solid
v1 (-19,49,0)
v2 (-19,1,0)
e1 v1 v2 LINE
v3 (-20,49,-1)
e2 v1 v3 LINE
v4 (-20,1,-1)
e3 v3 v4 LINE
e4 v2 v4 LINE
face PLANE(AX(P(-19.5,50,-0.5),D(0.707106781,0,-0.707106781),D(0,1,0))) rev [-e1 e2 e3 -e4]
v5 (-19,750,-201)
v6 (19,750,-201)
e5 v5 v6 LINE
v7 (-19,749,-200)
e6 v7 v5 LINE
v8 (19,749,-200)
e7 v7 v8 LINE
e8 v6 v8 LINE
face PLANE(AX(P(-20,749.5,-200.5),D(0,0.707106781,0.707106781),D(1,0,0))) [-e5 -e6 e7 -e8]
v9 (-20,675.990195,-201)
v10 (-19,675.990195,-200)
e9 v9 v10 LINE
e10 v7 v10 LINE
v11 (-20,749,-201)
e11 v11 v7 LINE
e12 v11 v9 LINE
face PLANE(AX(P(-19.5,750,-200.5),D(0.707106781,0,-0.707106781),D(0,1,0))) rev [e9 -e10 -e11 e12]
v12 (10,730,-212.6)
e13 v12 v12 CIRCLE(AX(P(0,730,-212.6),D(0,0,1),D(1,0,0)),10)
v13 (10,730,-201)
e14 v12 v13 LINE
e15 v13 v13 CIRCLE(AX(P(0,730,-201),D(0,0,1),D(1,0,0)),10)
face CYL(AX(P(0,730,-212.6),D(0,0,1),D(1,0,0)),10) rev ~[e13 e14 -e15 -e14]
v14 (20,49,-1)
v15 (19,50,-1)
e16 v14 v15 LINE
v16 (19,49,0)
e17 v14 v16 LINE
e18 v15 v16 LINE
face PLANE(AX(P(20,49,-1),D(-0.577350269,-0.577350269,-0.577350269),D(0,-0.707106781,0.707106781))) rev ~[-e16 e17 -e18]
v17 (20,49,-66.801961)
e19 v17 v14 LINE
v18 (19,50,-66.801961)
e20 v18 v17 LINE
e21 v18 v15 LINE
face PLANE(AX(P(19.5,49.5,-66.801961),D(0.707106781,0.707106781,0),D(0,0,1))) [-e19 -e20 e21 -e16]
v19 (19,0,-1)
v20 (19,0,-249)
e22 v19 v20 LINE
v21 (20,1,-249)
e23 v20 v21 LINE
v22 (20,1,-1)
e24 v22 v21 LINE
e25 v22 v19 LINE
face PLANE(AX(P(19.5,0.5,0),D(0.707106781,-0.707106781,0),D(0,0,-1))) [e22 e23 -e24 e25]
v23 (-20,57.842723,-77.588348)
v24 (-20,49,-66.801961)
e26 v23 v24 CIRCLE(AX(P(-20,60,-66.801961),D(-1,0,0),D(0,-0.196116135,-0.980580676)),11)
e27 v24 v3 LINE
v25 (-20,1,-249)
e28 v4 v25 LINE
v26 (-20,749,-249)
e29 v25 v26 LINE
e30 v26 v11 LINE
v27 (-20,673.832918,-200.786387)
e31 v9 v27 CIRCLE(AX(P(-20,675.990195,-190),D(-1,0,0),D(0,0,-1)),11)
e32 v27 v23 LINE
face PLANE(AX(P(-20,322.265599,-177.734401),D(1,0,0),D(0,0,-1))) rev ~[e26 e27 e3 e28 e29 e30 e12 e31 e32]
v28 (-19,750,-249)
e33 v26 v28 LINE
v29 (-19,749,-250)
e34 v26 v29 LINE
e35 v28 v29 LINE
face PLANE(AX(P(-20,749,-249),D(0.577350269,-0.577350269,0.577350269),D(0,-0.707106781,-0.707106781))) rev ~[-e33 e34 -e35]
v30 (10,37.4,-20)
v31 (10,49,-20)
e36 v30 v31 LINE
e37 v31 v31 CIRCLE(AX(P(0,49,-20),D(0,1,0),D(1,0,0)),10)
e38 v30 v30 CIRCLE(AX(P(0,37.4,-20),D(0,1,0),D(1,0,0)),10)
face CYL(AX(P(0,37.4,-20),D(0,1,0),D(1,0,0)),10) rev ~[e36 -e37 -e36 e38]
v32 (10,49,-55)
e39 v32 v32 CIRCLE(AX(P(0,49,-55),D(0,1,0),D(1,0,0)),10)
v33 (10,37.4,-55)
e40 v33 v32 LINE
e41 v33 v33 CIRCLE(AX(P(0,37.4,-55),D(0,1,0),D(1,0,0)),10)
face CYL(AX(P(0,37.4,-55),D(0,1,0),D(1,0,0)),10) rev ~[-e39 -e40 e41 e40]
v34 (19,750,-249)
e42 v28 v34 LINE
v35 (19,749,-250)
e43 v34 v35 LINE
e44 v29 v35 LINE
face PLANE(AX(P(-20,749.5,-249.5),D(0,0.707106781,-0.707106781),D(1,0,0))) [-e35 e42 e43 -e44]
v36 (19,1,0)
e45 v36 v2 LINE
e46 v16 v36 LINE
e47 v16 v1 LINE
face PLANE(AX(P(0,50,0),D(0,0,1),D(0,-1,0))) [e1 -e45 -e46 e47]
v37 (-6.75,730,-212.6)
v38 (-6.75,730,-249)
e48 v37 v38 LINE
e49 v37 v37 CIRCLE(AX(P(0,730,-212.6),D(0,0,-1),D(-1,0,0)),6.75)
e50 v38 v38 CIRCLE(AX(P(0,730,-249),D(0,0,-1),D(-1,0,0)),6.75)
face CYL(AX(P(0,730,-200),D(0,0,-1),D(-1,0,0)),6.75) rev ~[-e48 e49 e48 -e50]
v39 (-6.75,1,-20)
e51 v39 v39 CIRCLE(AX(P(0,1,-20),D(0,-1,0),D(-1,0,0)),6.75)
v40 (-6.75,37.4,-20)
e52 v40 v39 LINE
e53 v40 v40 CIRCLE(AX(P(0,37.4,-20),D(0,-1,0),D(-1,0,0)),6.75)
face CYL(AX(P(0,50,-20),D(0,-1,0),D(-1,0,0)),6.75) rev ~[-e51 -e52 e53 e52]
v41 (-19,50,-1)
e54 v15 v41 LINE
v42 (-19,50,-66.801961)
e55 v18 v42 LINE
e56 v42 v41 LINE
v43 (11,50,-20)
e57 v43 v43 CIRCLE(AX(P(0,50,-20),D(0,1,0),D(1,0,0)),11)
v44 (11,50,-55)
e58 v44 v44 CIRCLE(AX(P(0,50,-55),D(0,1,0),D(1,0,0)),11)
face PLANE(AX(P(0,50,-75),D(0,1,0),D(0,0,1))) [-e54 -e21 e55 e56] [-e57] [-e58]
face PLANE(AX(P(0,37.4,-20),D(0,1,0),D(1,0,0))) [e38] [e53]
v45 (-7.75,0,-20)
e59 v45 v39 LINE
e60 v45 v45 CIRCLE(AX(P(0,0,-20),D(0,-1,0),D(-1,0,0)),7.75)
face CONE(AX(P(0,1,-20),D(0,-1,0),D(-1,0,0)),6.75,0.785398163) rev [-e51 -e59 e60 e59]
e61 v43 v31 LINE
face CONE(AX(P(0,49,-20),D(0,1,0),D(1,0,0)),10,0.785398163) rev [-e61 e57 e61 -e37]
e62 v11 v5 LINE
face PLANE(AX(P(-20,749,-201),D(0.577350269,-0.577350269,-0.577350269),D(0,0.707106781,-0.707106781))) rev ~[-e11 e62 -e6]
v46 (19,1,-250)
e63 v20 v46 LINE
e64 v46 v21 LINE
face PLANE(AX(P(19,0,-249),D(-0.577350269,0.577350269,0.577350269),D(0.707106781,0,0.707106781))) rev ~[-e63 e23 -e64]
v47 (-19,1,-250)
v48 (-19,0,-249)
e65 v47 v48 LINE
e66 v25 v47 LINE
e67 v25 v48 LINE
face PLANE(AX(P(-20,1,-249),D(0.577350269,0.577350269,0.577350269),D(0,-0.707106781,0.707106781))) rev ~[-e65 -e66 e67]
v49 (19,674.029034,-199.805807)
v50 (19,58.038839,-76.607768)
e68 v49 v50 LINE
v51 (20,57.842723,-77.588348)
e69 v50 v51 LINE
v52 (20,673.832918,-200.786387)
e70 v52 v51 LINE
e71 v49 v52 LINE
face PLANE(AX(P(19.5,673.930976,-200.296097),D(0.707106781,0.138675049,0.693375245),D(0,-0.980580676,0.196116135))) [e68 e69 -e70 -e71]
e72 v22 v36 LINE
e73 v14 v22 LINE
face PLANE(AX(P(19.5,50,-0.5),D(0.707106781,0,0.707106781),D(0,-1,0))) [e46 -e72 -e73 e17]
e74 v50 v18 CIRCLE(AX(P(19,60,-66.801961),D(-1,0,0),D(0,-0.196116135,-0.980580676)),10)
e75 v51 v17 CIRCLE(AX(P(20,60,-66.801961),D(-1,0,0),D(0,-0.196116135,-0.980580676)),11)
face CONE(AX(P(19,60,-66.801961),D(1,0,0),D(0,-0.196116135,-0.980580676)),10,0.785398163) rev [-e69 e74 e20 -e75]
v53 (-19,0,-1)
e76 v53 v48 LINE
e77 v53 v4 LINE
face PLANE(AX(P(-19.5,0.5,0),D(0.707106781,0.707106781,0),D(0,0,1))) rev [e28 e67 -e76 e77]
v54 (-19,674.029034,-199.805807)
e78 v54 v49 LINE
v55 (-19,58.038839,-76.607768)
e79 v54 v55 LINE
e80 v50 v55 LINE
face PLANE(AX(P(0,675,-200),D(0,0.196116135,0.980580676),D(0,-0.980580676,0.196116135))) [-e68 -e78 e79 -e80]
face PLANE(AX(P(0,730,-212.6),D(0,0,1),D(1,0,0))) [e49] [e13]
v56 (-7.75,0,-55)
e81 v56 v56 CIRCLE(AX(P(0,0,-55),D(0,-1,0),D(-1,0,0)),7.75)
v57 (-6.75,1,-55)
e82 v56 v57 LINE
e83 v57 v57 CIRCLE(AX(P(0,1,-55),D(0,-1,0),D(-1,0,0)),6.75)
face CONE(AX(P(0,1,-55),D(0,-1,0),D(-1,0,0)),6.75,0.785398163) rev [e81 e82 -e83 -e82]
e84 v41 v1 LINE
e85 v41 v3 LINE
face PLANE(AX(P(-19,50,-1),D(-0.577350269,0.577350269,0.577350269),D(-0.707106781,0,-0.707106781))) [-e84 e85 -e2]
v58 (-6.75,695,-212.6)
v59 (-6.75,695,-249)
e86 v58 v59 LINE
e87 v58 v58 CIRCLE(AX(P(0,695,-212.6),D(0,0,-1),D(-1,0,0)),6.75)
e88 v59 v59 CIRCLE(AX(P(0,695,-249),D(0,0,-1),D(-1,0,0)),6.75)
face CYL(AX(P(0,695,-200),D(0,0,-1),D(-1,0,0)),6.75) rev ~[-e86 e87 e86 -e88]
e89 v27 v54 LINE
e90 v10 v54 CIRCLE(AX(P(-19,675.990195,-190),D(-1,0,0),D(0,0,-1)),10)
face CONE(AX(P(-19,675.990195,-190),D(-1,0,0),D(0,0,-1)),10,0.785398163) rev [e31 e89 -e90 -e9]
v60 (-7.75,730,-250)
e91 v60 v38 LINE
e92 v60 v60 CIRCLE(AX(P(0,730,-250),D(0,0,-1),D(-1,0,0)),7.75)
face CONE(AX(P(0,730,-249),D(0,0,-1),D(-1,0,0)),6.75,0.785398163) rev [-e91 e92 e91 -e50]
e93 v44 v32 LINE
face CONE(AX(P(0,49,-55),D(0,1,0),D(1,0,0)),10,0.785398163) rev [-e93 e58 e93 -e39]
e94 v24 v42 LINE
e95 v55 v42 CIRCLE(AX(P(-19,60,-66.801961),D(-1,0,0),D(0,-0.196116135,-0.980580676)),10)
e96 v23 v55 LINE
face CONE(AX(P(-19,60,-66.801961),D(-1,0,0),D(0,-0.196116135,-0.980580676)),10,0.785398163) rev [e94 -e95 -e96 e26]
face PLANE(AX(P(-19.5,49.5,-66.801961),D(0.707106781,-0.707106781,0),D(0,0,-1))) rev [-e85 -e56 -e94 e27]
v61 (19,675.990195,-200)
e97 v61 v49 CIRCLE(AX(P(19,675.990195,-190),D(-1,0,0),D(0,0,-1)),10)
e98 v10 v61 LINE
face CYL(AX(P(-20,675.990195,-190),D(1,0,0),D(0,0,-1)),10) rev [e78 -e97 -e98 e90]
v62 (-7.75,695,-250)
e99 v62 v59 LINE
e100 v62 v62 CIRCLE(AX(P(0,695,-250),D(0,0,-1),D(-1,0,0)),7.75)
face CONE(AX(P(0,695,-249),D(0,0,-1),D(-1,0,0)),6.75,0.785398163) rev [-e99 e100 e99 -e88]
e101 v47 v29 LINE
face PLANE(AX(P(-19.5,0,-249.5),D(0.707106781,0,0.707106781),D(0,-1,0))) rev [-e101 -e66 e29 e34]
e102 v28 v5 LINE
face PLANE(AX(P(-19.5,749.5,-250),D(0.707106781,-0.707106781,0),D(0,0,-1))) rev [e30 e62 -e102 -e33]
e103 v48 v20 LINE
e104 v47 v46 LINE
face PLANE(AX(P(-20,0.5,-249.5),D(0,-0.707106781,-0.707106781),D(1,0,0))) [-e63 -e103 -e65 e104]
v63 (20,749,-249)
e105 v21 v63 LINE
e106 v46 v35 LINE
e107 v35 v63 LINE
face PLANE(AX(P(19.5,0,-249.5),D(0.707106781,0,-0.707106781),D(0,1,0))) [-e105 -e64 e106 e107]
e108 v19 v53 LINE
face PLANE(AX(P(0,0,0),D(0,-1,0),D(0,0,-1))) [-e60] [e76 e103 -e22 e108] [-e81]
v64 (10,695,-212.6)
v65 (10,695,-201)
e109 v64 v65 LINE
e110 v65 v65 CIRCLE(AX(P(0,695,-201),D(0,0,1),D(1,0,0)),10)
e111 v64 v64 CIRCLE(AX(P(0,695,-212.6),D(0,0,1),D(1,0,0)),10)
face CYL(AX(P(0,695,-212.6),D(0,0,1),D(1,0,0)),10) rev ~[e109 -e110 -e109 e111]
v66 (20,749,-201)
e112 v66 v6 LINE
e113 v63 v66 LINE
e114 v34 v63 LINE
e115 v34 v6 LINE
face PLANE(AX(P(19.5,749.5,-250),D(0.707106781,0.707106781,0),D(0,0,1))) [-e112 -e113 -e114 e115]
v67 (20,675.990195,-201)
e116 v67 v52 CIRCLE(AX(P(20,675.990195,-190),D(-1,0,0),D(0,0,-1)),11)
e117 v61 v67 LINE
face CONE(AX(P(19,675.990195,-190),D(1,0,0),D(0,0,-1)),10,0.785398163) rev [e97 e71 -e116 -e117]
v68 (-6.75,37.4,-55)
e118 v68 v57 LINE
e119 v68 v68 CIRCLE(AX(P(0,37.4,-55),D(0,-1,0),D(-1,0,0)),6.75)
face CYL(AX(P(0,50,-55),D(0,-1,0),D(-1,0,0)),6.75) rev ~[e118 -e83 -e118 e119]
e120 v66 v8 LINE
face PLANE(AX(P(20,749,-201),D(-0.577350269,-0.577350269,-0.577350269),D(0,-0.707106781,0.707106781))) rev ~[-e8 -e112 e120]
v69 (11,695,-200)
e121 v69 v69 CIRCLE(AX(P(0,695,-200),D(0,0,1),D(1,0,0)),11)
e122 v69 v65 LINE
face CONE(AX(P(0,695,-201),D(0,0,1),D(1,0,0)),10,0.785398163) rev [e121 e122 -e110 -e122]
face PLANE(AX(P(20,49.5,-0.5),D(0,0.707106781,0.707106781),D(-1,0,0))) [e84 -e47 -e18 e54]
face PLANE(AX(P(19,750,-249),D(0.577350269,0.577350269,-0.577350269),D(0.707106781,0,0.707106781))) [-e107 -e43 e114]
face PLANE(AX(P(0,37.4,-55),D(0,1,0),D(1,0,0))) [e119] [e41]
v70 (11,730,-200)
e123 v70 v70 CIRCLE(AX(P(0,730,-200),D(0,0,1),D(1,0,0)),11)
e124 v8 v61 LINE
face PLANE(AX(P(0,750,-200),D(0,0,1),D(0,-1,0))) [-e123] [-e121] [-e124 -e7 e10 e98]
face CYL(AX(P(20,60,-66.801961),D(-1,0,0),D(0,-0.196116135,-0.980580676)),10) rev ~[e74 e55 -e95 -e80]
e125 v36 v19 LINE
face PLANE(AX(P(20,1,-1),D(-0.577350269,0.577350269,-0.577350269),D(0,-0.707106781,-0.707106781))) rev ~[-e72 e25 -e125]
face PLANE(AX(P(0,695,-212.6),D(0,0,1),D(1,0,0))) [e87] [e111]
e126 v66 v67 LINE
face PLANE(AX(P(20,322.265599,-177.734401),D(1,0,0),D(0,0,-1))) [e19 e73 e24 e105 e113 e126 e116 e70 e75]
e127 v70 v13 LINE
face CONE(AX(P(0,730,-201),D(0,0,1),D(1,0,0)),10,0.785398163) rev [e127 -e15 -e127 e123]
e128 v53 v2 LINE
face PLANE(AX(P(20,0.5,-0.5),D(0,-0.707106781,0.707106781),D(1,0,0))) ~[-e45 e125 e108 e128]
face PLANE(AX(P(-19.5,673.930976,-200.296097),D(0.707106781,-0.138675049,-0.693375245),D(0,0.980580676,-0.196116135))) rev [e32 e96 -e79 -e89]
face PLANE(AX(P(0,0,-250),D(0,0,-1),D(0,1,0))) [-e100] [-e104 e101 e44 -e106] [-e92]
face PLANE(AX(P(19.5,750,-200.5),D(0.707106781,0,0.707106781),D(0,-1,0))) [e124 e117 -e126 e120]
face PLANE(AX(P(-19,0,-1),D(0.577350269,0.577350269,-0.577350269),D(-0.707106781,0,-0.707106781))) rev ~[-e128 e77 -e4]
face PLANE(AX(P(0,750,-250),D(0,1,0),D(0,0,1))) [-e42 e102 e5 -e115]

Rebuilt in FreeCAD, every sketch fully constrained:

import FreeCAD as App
import Part
import Sketcher

V = App.Vector


def edges_at(feature, points):
    """Names of the edges that pass closest to the given points."""
    edges = feature.Shape.Edges
    near = lambda p: min(range(len(edges)), key=lambda i: edges[i].distToShape(Part.Vertex(*p))[0])
    return sorted({f"Edge{near(p) + 1}" for p in points})

doc = App.newDocument("Part")
body = doc.addObject("PartDesign::Body", "Body")

# Sketch on YZ plane
sketch1 = body.newObject("Sketcher::SketchObject", "Sketch")
sketch1.AttachmentSupport = (doc.getObject("YZ_Plane"), [""])
sketch1.MapMode = "FlatFace"
sketch1.addGeometry(Part.LineSegment(V(0, 0, 0), V(0, -250, 0)), False)
sketch1.addGeometry(Part.LineSegment(V(0, -250, 0), V(750, -250, 0)), False)
sketch1.addGeometry(Part.LineSegment(V(750, -250, 0), V(750, -200, 0)), False)
sketch1.addGeometry(Part.LineSegment(V(750, -200, 0), V(675, -200, 0)), False)
sketch1.addGeometry(Part.LineSegment(V(675, -200, 0), V(50, -75, 0)), False)
sketch1.addGeometry(Part.LineSegment(V(50, -75, 0), V(50, 0, 0)), False)
sketch1.addGeometry(Part.LineSegment(V(50, 0, 0), V(0, 0, 0)), False)
sketch1.addConstraint(Sketcher.Constraint("Coincident", 0, 2, 1, 1))
sketch1.addConstraint(Sketcher.Constraint("Coincident", 1, 2, 2, 1))
sketch1.addConstraint(Sketcher.Constraint("Coincident", 2, 2, 3, 1))
sketch1.addConstraint(Sketcher.Constraint("Coincident", 3, 2, 4, 1))
sketch1.addConstraint(Sketcher.Constraint("Coincident", 4, 2, 5, 1))
sketch1.addConstraint(Sketcher.Constraint("Coincident", 5, 2, 6, 1))
sketch1.addConstraint(Sketcher.Constraint("Coincident", 6, 2, 0, 1))
sketch1.addConstraint(Sketcher.Constraint("Vertical", 0))
sketch1.addConstraint(Sketcher.Constraint("Horizontal", 1))
sketch1.addConstraint(Sketcher.Constraint("Vertical", 2))
sketch1.addConstraint(Sketcher.Constraint("Horizontal", 3))
sketch1.addConstraint(Sketcher.Constraint("Vertical", 5))
sketch1.addConstraint(Sketcher.Constraint("Horizontal", 6))
sketch1.addConstraint(Sketcher.Constraint("Coincident", 6, 2, -1, 1))
sketch1.addConstraint(Sketcher.Constraint("Equal", 6, 2))
sketch1.addConstraint(Sketcher.Constraint("Equal", 3, 5))
sketch1.addConstraint(Sketcher.Constraint("DistanceX", 1, 1, 1, 2, 750.0))
sketch1.addConstraint(Sketcher.Constraint("DistanceX", 3, 2, 3, 1, 75.0))
sketch1.addConstraint(Sketcher.Constraint("DistanceX", 6, 2, 6, 1, 50.0))
sketch1.addConstraint(Sketcher.Constraint("DistanceY", 0, 2, 0, 1, 250.0))
pad1 = body.newObject("PartDesign::Pad", "Pad")
pad1.Profile = sketch1
pad1.Length = 40
pad1.Midplane = True

# Sketch on XZ plane
sketch2 = body.newObject("Sketcher::SketchObject", "Sketch001")
sketch2.AttachmentSupport = (doc.getObject("XZ_Plane"), [""])
sketch2.MapMode = "FlatFace"
sketch2.AttachmentOffset = App.Placement(V(0, 0, -50), App.Rotation())
sketch2.addGeometry(Part.Circle(V(0, -55, 0), V(0, 0, 1), 7), False)
sketch2.addGeometry(Part.Circle(V(0, -20, 0), V(0, 0, 1), 7), False)
sketch2.addConstraint(Sketcher.Constraint("Equal", 0, 1))
sketch2.addConstraint(Sketcher.Constraint("PointOnObject", 0, 3, -2))
sketch2.addConstraint(Sketcher.Constraint("PointOnObject", 1, 3, -2))
sketch2.addConstraint(Sketcher.Constraint("Diameter", 0, 13.5))
sketch2.addConstraint(Sketcher.Constraint("DistanceY", 0, 3, -1, 1, 55.0))
sketch2.addConstraint(Sketcher.Constraint("DistanceY", 1, 3, -1, 1, 20.0))
doc.recompute()
hole = body.newObject("PartDesign::Hole", "Hole")
hole.Profile = sketch2
hole.ThreadType = "None"
hole.Diameter = 13.5
hole.DepthType = "ThroughAll"
hole.HoleCutType = "Counterbore"
hole.HoleCutDiameter = 20
hole.HoleCutDepth = 12.6
hole.Reversed = True

# Sketch on XY plane
sketch3 = body.newObject("Sketcher::SketchObject", "Sketch002")
sketch3.AttachmentSupport = (doc.getObject("XY_Plane"), [""])
sketch3.MapMode = "FlatFace"
sketch3.AttachmentOffset = App.Placement(V(0, 0, -200), App.Rotation())
sketch3.addGeometry(Part.Circle(V(0, 730, 0), V(0, 0, 1), 7), False)
sketch3.addGeometry(Part.Circle(V(0, 695, 0), V(0, 0, 1), 7), False)
sketch3.addConstraint(Sketcher.Constraint("Equal", 0, 1))
sketch3.addConstraint(Sketcher.Constraint("PointOnObject", 0, 3, -2))
sketch3.addConstraint(Sketcher.Constraint("PointOnObject", 1, 3, -2))
sketch3.addConstraint(Sketcher.Constraint("Diameter", 0, 13.5))
sketch3.addConstraint(Sketcher.Constraint("DistanceY", -1, 1, 0, 3, 730.0))
sketch3.addConstraint(Sketcher.Constraint("DistanceY", -1, 1, 1, 3, 695.0))
doc.recompute()
hole2 = body.newObject("PartDesign::Hole", "Hole001")
hole2.Profile = sketch3
hole2.ThreadType = "None"
hole2.Diameter = 13.5
hole2.DepthType = "ThroughAll"
hole2.HoleCutType = "Counterbore"
hole2.HoleCutDiameter = 20
hole2.HoleCutDepth = 12.6
doc.recompute()

fillet = body.newObject("PartDesign::Fillet", "Fillet")
fillet.Base = (hole2, edges_at(hole2, [(0, 50, -75), (0, 675, -200)]))
fillet.Radius = 10
doc.recompute()

chamfer = body.newObject("PartDesign::Chamfer", "Chamfer")
chamfer.Base = (fillet, edges_at(fillet, [
    (-20, 25, 0),
    (0, 50, 0),
    (20, 375, -250),
    (0, 750, -200),
    (0, 750, -250),
    (0, 0, -250),
    (0, 0, 0),
    (20, 750, -225),
    (20, 712.995, -200),
    (6.75, 0, -20),
    (6.75, 0, -55),
    (6.75, 695, -250),
    (6.75, 730, -250),
    (20, 25, 0),
    (-20, 50, -33.401),
    (20, 50, -33.401),
    (-20, 366.034, -138.207),
    (20, 366.034, -138.207),
    (-20, 52.267, -73.142),
    (20, 52.267, -73.142),
    (-20, 675.005, -199.951),
    (20, 675.005, -199.951),
    (-20, 712.995, -200),
    (-20, 750, -225),
    (20, 0, -125),
    (-20, 375, -250),
    (-20, 0, -125),
]))
chamfer.Size = 1
doc.recompute()

chamfer2 = body.newObject("PartDesign::Chamfer", "Chamfer001")
chamfer2.Base = (chamfer, edges_at(chamfer, [
    (-10, 50, -20),
    (-10, 50, -55),
    (-10, 695, -200),
    (-10, 730, -200),
]))
chamfer2.Size = 1

doc.recompute()
